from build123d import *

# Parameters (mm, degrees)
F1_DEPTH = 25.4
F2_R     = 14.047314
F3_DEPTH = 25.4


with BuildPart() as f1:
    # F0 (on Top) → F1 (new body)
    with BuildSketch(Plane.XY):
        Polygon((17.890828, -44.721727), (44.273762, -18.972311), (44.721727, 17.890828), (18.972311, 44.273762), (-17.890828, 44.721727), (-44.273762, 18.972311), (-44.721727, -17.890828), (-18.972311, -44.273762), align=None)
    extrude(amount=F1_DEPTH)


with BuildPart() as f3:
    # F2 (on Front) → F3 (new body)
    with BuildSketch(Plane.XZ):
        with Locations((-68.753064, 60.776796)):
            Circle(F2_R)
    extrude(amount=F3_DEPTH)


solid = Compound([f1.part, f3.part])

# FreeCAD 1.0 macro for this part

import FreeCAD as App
import Part
import Sketcher

V = App.Vector
Q = App.Units.Quantity

doc = App.newDocument("Part")
body = doc.addObject("PartDesign::Body", "Body")

sketch1 = body.newObject("Sketcher::SketchObject", "Sketch")
sketch1.AttachmentSupport = (doc.getObject("XY_Plane"), [""])
sketch1.MapMode = "FlatFace"
sketch1.addGeometry([
    Part.LineSegment(V(18, -45, 0), V(44, -19, 0)),
    Part.LineSegment(V(44, -19, 0), V(45, 18, 0)),
    Part.LineSegment(V(45, 18, 0), V(19, 44, 0)),
    Part.LineSegment(V(19, 44, 0), V(-18, 45, 0)),
    Part.LineSegment(V(-18, 45, 0), V(-44, 19, 0)),
    Part.LineSegment(V(-44, 19, 0), V(-45, -18, 0)),
    Part.LineSegment(V(-45, -18, 0), V(-19, -44, 0)),
    Part.LineSegment(V(-19, -44, 0), V(18, -45, 0)),
], False)
sketch1.addConstraint([
    Sketcher.Constraint("Coincident", 0, 2, 1, 1),
    Sketcher.Constraint("Coincident", 1, 2, 2, 1),
    Sketcher.Constraint("Coincident", 2, 2, 3, 1),
    Sketcher.Constraint("Coincident", 3, 2, 4, 1),
    Sketcher.Constraint("Coincident", 4, 2, 5, 1),
    Sketcher.Constraint("Coincident", 5, 2, 6, 1),
    Sketcher.Constraint("Coincident", 6, 2, 7, 1),
    Sketcher.Constraint("Coincident", 7, 2, 0, 1),
    Sketcher.Constraint("Symmetric", 0, 2, 4, 2, -1, 1),
    Sketcher.Constraint("Symmetric", 1, 2, 5, 2, -1, 1),
    Sketcher.Constraint("Symmetric", 2, 2, 6, 2, -1, 1),
    Sketcher.Constraint("Symmetric", 3, 2, 7, 2, -1, 1),
    Sketcher.Constraint("Perpendicular", 0, 2),
    Sketcher.Constraint("Perpendicular", 1, 3),
    Sketcher.Constraint("Equal", 0, 1),
    Sketcher.Constraint("Equal", 1, 2),
    Sketcher.Constraint("Equal", 2, 3),
    Sketcher.Constraint("DistanceY", 1, 2, 3, 2, 26.830899),
    Sketcher.Constraint("Distance", 0, 36.86586),
    Sketcher.Constraint("DistanceX", -1, 1, 0, 2, 44.273762),
])
pad1 = body.newObject("PartDesign::Pad", "Pad")
pad1.Profile = sketch1
pad1.Length = Q("1 in")
body2 = doc.addObject("PartDesign::Body", "Body001")

sketch2 = body2.newObject("Sketcher::SketchObject", "Sketch001")
sketch2.AttachmentSupport = (doc.getObject("XZ_Plane001"), [""])
sketch2.MapMode = "FlatFace"
sketch2.addGeometry(Part.Circle(V(-69, 61, 0), V(0, 0, 1), 14), False)
sketch2.addConstraint([
    Sketcher.Constraint("Diameter", 0, 28.094628),
    Sketcher.Constraint("DistanceX", 0, 3, -1, 1, 68.753064),
    Sketcher.Constraint("DistanceY", -1, 1, 0, 3, 60.776796),
])
pad2 = body2.newObject("PartDesign::Pad", "Pad001")
pad2.Profile = sketch2
pad2.Length = Q("1 in")

doc.recompute()
